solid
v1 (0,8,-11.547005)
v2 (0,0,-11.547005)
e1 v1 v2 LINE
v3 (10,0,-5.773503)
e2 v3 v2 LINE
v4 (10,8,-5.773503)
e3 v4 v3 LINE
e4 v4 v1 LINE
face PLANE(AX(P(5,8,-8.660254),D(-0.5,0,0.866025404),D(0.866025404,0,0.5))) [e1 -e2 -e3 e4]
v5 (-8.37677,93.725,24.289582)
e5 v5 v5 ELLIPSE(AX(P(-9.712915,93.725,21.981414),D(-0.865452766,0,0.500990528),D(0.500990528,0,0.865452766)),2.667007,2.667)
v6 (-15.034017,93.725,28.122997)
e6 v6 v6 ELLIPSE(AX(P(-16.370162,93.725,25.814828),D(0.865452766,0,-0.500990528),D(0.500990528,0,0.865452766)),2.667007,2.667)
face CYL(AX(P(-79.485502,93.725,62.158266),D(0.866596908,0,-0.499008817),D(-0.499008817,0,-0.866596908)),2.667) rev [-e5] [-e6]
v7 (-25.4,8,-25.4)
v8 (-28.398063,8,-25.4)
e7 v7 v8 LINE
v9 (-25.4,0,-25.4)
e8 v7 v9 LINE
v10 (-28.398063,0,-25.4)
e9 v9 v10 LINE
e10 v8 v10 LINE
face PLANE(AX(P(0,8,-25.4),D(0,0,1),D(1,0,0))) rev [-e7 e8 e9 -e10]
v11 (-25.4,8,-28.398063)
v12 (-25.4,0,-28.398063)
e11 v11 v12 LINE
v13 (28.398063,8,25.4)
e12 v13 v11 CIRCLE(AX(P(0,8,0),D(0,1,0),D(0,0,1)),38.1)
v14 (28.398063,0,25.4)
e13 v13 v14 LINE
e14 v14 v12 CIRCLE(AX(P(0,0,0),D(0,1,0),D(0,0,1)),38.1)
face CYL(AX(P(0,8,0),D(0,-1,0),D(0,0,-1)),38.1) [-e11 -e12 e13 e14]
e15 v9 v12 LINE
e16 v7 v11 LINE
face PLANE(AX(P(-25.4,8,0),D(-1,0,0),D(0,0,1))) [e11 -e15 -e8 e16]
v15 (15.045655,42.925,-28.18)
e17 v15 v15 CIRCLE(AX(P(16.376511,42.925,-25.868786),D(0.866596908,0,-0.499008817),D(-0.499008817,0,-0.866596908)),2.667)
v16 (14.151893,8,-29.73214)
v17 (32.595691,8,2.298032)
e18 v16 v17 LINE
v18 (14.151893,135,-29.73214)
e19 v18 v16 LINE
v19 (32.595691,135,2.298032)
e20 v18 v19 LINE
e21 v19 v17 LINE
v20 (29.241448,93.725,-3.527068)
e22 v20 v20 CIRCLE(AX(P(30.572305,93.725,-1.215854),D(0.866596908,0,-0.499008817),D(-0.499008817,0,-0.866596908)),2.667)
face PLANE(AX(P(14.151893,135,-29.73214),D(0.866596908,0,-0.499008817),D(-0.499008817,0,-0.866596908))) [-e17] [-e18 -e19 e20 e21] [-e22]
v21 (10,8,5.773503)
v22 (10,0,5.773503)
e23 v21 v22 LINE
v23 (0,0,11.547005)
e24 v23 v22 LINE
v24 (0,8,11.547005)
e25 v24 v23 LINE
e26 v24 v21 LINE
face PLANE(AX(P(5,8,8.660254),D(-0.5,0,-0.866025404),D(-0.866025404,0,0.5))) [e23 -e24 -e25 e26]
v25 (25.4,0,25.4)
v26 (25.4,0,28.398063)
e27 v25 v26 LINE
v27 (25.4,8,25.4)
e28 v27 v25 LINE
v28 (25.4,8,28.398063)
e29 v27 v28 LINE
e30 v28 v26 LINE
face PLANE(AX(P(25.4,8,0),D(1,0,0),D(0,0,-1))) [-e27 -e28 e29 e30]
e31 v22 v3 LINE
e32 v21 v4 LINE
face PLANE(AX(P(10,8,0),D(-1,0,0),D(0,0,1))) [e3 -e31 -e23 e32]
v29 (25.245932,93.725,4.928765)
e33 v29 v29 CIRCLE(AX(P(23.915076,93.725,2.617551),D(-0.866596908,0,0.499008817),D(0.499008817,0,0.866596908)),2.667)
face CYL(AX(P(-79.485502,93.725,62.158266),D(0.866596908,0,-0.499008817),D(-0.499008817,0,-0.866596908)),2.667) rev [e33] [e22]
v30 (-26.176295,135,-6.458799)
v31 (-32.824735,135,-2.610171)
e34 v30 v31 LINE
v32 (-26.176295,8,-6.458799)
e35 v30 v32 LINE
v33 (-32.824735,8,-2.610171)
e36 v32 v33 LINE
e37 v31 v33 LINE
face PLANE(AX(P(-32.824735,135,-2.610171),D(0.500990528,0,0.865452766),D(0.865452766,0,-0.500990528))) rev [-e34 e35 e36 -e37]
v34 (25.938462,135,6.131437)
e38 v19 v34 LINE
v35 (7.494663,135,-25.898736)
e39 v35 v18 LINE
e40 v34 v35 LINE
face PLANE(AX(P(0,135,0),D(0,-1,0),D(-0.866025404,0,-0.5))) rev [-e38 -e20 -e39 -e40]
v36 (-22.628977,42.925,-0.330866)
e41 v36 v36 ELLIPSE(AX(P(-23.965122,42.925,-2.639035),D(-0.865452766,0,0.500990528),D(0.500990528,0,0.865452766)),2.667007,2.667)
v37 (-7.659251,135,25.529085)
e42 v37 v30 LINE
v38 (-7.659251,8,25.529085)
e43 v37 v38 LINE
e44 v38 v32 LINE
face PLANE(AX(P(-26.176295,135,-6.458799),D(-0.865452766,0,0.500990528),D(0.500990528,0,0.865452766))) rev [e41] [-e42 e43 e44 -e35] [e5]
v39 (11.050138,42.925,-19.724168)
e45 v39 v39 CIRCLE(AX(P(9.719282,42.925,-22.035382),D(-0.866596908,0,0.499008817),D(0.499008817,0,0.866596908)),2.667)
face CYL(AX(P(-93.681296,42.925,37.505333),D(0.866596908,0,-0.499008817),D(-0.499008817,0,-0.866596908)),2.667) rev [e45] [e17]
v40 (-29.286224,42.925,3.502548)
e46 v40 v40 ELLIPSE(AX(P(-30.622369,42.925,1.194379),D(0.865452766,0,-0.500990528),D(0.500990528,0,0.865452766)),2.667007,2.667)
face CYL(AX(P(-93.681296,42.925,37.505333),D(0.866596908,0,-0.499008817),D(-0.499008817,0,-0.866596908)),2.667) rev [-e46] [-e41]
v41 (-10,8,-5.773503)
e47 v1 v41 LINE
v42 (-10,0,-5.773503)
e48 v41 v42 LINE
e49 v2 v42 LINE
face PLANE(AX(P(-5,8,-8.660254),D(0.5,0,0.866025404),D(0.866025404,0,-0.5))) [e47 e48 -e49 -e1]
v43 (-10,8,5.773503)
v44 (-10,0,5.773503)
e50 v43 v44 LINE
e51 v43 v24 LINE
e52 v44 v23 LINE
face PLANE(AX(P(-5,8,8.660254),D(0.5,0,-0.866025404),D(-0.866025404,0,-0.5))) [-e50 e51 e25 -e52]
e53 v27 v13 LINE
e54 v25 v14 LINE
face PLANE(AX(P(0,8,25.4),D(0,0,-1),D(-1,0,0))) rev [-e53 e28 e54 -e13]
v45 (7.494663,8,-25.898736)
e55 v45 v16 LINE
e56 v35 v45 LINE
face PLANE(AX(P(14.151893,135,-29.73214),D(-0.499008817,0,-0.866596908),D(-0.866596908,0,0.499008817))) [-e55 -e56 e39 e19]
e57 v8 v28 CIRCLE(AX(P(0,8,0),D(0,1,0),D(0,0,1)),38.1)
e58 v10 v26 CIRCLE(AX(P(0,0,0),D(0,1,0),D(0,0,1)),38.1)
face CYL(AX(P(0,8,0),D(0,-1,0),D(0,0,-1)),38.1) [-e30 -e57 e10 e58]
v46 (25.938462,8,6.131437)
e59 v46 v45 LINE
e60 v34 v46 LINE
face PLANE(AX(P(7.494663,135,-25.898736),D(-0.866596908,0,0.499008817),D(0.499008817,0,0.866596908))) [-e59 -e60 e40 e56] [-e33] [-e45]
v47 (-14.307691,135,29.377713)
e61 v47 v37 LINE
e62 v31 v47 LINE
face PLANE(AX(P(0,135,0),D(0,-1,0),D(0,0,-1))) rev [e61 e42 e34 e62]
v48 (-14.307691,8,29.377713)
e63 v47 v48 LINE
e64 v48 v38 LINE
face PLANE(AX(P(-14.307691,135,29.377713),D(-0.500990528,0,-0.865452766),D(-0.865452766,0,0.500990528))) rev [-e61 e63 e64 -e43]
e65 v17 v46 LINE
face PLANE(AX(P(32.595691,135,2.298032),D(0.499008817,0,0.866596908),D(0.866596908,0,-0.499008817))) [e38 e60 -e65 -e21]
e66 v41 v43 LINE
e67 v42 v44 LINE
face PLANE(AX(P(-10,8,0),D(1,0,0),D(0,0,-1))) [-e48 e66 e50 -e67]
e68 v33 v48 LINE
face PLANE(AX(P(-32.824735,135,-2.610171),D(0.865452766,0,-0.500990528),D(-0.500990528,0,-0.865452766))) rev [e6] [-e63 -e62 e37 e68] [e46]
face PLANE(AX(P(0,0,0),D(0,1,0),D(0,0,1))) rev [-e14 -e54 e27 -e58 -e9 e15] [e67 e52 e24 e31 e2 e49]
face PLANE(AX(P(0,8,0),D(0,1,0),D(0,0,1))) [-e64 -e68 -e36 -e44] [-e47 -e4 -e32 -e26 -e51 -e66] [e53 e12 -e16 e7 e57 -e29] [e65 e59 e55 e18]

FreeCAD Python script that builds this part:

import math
import FreeCAD as App
import Part
import Sketcher
from FreeCAD import Vector
Q = App.Units.Quantity

doc = App.newDocument("Part")
params = doc.addObject("Spreadsheet::Sheet", "Params")
for row, (alias, value) in enumerate([
    ("sketch1_radius", "1.5 in"),
    ("pad1_length", "8 mm"),
    ("pad2_length", "5 in"),
    ("sketch3_diameter", "0.21 in"),
    ("pocket1_length", "5 in"),
], start=1):
    params.set(f"A{row}", alias)
    params.set(f"B{row}", "=" + value)
    params.setAlias(f"B{row}", alias)

body = doc.addObject("PartDesign::Body", "Body")

# Sketch on XZ plane
sketch1 = body.newObject("Sketcher::SketchObject", "Sketch")
sketch1.AttachmentSupport = (doc.getObject("XZ_Plane"), [""])
sketch1.MapMode = "FlatFace"
sketch1.addGeometry([
    Part.ArcOfCircle(Part.Circle(Vector(0, 0, 0), Vector(0, 0, 1), 38.1), math.radians(48), math.radians(222)),  # 0
    Part.LineSegment(Vector(25.4, 28.4, 0), Vector(25.4, 25.4, 0)),  # 1
    Part.LineSegment(Vector(25.4, 25.4, 0), Vector(28.4, 25.4, 0)),  # 2
    Part.ArcOfCircle(Part.Circle(Vector(0, 0, 0), Vector(0, 0, 1), 38.1), math.radians(-132), math.radians(42)),  # 3
    Part.LineSegment(Vector(-25.4, -28.4, 0), Vector(-25.4, -25.4, 0)),  # 4
    Part.LineSegment(Vector(-25.4, -25.4, 0), Vector(-28.4, -25.4, 0)),  # 5
    Part.LineSegment(Vector(0, -11.5, 0), Vector(10, -5.8, 0)),  # 6
    Part.LineSegment(Vector(10, -5.8, 0), Vector(10, 5.8, 0)),  # 7
    Part.LineSegment(Vector(10, 5.8, 0), Vector(0, 11.5, 0)),  # 8
    Part.LineSegment(Vector(0, 11.5, 0), Vector(-10, 5.8, 0)),  # 9
    Part.LineSegment(Vector(-10, 5.8, 0), Vector(-10, -5.8, 0)),  # 10
    Part.LineSegment(Vector(-10, -5.8, 0), Vector(0, -11.5, 0)),  # 11
], False)
sketch1.addConstraint([
    Sketcher.Constraint("Coincident", 0, 1, 1, 1),
    Sketcher.Constraint("Coincident", 1, 2, 2, 1),
    Sketcher.Constraint("Coincident", 2, 2, 3, 2),
    Sketcher.Constraint("Coincident", 3, 1, 4, 1),
    Sketcher.Constraint("Coincident", 4, 2, 5, 1),
    Sketcher.Constraint("Coincident", 5, 2, 0, 2),
    Sketcher.Constraint("Coincident", 6, 2, 7, 1),
    Sketcher.Constraint("Coincident", 7, 2, 8, 1),
    Sketcher.Constraint("Coincident", 8, 2, 9, 1),
    Sketcher.Constraint("Coincident", 9, 2, 10, 1),
    Sketcher.Constraint("Coincident", 10, 2, 11, 1),
    Sketcher.Constraint("Coincident", 11, 2, 6, 1),
    Sketcher.Constraint("Vertical", 1),
    Sketcher.Constraint("Horizontal", 2),
    Sketcher.Constraint("Vertical", 4),
    Sketcher.Constraint("Horizontal", 5),
    Sketcher.Constraint("Vertical", 7),
    Sketcher.Constraint("Vertical", 10),
    Sketcher.Constraint("Coincident", 0, 3, -1, 1),
    Sketcher.Constraint("Coincident", 3, 3, -1, 1),
    Sketcher.Constraint("Equal", 0, 3),
    Sketcher.Constraint("Symmetric", 1, 2, 4, 2, -1, 1),
    Sketcher.Constraint("Symmetric", 6, 2, 9, 2, -1, 1),
    Sketcher.Constraint("Symmetric", 8, 2, 11, 2, -1, 1),
    Sketcher.Constraint("PointOnObject", 8, 2, -2),
    Sketcher.Constraint("Parallel", 8, 11),
    Sketcher.Constraint("Horizontal", 7, 2, 9, 2),
    Sketcher.Constraint("Equal", 5, 1),
    Sketcher.Constraint("Radius", 0, Q("1.5 in")),
    Sketcher.Constraint("DistanceX", -1, 1, 0, 1, Q("1 in")),
    Sketcher.Constraint("Angle", 6, Q("30 deg")),
    Sketcher.Constraint("DistanceX", -1, 1, 6, 2, Q("10 mm")),
    Sketcher.Constraint("DistanceY", 7, 1, 7, 2, Q("11.547005 mm")),
])
sketch1.setExpression("Constraints[28]", "Params.sketch1_radius")
pad1 = body.newObject("PartDesign::Pad", "Pad")
pad1.Profile = sketch1
pad1.setExpression("Length", "Params.pad1_length")
pad1.Reversed = True

# Sketch on XZ plane
sketch2 = body.newObject("Sketcher::SketchObject", "Sketch001")
sketch2.AttachmentSupport = (doc.getObject("XZ_Plane"), [""])
sketch2.MapMode = "FlatFace"
sketch2.AttachmentOffset = App.Placement(Vector(0, 0, -8), App.Rotation())
sketch2.addGeometry([
    Part.LineSegment(Vector(-33, -3, 0), Vector(-14, 29, 0)),
    Part.LineSegment(Vector(-14, 29, 0), Vector(-8, 26, 0)),
    Part.LineSegment(Vector(-8, 26, 0), Vector(-26, -6, 0)),
    Part.LineSegment(Vector(-26, -6, 0), Vector(-33, -3, 0)),
], False)
sketch2.addConstraint([
    Sketcher.Constraint("Coincident", 0, 2, 1, 1),
    Sketcher.Constraint("Coincident", 1, 2, 2, 1),
    Sketcher.Constraint("Coincident", 2, 2, 3, 1),
    Sketcher.Constraint("Coincident", 3, 2, 0, 1),
    Sketcher.Constraint("Perpendicular", 0, 1),
    Sketcher.Constraint("Perpendicular", 1, 2),
    Sketcher.Constraint("Perpendicular", 2, 3),
    Sketcher.Constraint("DistanceY", 2, 2, -1, 1, Q("6.458799 mm")),
    Sketcher.Constraint("DistanceX", 0, 2, -1, 1, Q("14.307691 mm")),
    Sketcher.Constraint("DistanceX", 1, 2, -1, 1, Q("7.659251 mm")),
    Sketcher.Constraint("DistanceY", 3, 2, -1, 1, Q("2.610171 mm")),
    Sketcher.Constraint("DistanceY", 2, 2, 0, 2, Q("35.836512 mm")),
])
pad2 = body.newObject("PartDesign::Pad", "Pad001")
pad2.Profile = sketch2
pad2.setExpression("Length", "Params.pad2_length")
pad2.Reversed = True
doc.recompute()

datumplane = body.newObject("PartDesign::Plane", "DatumPlane")
datumplane.Placement = App.Placement(Vector(0, 0, 0), App.Rotation(Vector(0.5, 0, 0.866025404), Vector(0, -1, 0), Vector(0.866025404, 0, -0.5), "ZXY"))
mirrored = body.newObject("PartDesign::Mirrored", "Mirrored")
mirrored.Originals = [pad2]
mirrored.MirrorPlane = (datumplane, [""])
body.Tip = mirrored

# Sketch on an angled plane
sketch3 = body.newObject("Sketcher::SketchObject", "Sketch002")
sketch3.Placement = App.Placement(Vector(23.485285, 0, -13.523432), App.Rotation(Vector(-0.499008817, 0, -0.866596908), Vector(0, 1, 0), Vector(0.866596908, 0, -0.499008817), "ZXY"))
sketch3.addGeometry([
    Part.Circle(Vector(-14.2, 93.7, 0), Vector(0, 0, 1), 2.7),
    Part.Circle(Vector(14.2, 42.9, 0), Vector(0, 0, 1), 2.7),
], False)
sketch3.addConstraint([
    Sketcher.Constraint("Equal", 0, 1),
    Sketcher.Constraint("Diameter", 0, Q("0.21 in")),
    Sketcher.Constraint("DistanceY", 1, 3, 0, 3, Q("2 in")),
    Sketcher.Constraint("DistanceY", -1, 1, 0, 3, Q("93.725 mm")),
    Sketcher.Constraint("DistanceX", 0, 3, 1, 3, Q("28.447981 mm")),
    Sketcher.Constraint("DistanceX", 0, 3, -1, 1, Q("14.202195 mm")),
])
sketch3.setExpression("Constraints[1]", "Params.sketch3_diameter")
pocket1 = body.newObject("PartDesign::Pocket", "Pocket")
pocket1.Profile = sketch3
pocket1.setExpression("Length", "Params.pocket1_length")

doc.recompute()
